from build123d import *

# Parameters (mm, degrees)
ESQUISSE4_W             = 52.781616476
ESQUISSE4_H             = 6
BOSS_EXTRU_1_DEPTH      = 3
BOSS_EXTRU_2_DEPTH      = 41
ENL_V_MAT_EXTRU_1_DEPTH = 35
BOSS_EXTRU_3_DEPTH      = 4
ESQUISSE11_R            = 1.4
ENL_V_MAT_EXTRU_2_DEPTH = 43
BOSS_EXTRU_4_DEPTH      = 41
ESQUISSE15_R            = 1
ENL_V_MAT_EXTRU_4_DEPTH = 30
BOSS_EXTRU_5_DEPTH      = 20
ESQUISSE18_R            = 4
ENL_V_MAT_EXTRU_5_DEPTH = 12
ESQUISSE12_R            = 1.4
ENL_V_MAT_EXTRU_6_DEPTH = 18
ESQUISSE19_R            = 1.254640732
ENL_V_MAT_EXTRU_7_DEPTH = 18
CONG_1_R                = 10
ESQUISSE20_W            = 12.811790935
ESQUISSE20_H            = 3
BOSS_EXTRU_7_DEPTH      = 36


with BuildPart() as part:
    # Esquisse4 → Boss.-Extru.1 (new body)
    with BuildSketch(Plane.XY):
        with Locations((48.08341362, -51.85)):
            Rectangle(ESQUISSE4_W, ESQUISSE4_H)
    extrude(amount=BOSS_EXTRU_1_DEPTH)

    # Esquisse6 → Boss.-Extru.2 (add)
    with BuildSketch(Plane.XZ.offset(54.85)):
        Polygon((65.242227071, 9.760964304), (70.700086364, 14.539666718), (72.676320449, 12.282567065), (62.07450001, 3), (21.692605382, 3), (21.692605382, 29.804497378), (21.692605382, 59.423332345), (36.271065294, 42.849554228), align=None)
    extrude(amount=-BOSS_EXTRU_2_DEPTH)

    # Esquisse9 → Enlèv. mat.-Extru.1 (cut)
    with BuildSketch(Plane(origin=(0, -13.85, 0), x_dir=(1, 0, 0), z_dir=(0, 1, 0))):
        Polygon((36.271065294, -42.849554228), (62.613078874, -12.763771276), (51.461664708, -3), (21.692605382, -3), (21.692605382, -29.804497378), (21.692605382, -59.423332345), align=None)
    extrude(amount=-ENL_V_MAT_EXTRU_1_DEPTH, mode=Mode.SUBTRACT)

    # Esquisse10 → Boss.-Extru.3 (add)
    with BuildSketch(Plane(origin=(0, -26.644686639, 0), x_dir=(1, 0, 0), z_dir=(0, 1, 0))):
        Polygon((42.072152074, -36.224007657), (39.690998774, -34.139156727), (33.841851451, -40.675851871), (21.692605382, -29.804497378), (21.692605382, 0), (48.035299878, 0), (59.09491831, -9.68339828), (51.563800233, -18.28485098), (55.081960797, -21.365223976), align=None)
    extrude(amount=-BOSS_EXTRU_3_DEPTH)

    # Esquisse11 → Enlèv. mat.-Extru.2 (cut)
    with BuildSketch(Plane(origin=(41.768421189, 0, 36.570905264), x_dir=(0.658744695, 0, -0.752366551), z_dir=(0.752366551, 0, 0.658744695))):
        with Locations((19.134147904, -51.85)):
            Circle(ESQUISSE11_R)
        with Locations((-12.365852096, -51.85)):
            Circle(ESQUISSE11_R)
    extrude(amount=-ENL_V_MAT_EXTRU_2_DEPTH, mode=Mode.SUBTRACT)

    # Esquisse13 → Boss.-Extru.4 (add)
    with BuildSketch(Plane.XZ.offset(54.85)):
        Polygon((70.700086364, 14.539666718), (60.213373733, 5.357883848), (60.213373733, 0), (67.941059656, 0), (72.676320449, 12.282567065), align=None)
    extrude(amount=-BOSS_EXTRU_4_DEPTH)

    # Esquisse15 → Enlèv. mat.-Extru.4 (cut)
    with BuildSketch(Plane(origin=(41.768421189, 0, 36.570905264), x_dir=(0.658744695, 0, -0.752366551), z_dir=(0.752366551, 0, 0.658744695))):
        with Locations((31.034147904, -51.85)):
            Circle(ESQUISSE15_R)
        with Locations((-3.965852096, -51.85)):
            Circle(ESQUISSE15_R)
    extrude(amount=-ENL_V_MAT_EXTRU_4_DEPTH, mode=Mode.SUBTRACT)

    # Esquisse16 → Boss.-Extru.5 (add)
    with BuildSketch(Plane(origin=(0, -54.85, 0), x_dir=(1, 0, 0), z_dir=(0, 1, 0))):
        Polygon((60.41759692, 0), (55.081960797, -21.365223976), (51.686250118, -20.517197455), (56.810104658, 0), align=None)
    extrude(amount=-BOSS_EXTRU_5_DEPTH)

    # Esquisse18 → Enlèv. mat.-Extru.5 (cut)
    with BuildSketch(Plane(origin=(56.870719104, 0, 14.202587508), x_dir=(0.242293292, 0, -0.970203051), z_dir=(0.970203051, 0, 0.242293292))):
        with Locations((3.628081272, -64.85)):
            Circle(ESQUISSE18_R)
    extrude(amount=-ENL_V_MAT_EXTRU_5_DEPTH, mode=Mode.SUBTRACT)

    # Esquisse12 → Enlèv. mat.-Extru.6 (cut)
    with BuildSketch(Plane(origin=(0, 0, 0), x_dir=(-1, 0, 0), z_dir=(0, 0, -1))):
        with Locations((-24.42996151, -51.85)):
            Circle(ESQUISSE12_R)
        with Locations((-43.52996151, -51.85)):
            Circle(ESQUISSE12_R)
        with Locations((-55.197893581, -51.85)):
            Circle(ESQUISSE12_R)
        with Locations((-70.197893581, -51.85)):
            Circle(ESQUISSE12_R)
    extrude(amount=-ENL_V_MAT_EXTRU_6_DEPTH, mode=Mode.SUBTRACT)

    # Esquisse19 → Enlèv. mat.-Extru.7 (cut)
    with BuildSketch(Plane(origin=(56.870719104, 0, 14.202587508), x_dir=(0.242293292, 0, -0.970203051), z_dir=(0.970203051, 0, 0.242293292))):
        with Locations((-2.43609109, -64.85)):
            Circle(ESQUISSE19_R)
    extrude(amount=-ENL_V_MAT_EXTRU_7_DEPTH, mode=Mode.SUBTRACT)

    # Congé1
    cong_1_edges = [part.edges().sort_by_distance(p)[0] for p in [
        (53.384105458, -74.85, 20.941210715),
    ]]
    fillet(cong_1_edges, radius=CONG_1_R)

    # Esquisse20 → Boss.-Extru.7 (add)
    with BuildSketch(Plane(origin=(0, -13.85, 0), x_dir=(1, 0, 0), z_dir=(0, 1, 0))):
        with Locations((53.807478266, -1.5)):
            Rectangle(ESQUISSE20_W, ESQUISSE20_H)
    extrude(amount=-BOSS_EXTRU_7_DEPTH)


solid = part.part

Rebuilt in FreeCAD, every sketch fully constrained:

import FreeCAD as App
import Part
import Sketcher


def edges_at(feature, points):
    """Names of the edges that pass closest to the given points."""
    edges = feature.Shape.Edges
    near = lambda p: min(range(len(edges)), key=lambda i: edges[i].distToShape(Part.Vertex(*p))[0])
    return sorted({f"Edge{near(p) + 1}" for p in points})

doc = App.newDocument("Part")
params = doc.addObject("Spreadsheet::Sheet", "Params")
for row, (alias, value) in enumerate([
    ("sketch1_height", "6 mm"),
    ("pad1_length", "3 mm"),
    ("sketch2_length", "3 mm"),
    ("pad2_length", "41 mm"),
    ("pocket1_length", "35 mm"),
    ("pad3_length", "4 mm"),
    ("sketch5_diameter", "2.8 mm"),
    ("pocket2_length", "43 mm"),
    ("sketch6_length", "3 mm"),
    ("pad4_length", "41 mm"),
    ("sketch7_diameter", "2 mm"),
    ("pocket3_length", "30 mm"),
    ("sketch8_length", "3.5 mm"),
    ("pad5_length", "20 mm"),
    ("sketch9_diameter", "8 mm"),
    ("pocket4_length", "12 mm"),
    ("sketch10_diameter", "2.8 mm"),
    ("pocket5_length", "18 mm"),
    ("pocket6_length", "18 mm"),
    ("fillet_radius", "10 mm"),
    ("sketch12_height", "3 mm"),
    ("pad6_length", "36 mm"),
], start=1):
    params.set(f"A{row}", alias)
    params.set(f"B{row}", "=" + value)
    params.setAlias(f"B{row}", alias)

body = doc.addObject("PartDesign::Body", "Body")

# Sketch on XY plane
sketch1 = doc.addObject("Sketcher::SketchObject", "Sketch")
body.addObject(sketch1)
sketch1.AttachmentSupport = (doc.XY_Plane, [""])
sketch1.MapMode = "FlatFace"
sketch1.addGeometry([
    Part.LineSegment(App.Vector(21.692605, -48.85, 0), App.Vector(21.692605, -54.85, 0)),
    Part.LineSegment(App.Vector(21.692605, -54.85, 0), App.Vector(74.474222, -54.85, 0)),
    Part.LineSegment(App.Vector(74.474222, -54.85, 0), App.Vector(74.474222, -48.85, 0)),
    Part.LineSegment(App.Vector(74.474222, -48.85, 0), App.Vector(21.692605, -48.85, 0)),
], False)
sketch1.addConstraint([
    Sketcher.Constraint("Coincident", 0, 2, 1, 1),
    Sketcher.Constraint("Coincident", 1, 2, 2, 1),
    Sketcher.Constraint("Coincident", 2, 2, 3, 1),
    Sketcher.Constraint("Coincident", 3, 2, 0, 1),
    Sketcher.Constraint("Vertical", 0),
    Sketcher.Constraint("Horizontal", 1),
    Sketcher.Constraint("Vertical", 2),
    Sketcher.Constraint("Horizontal", 3),
    Sketcher.Constraint("DistanceY", 0, 2, 0, 1, 6.0),
    Sketcher.Constraint("DistanceY", 0, 2, -1, 1, 54.85),
    Sketcher.Constraint("DistanceX", 1, 1, 1, 2, 52.781616),
    Sketcher.Constraint("DistanceX", -1, 1, 1, 2, 74.474222),
])
sketch1.setExpression("Constraints[8]", "Params.sketch1_height")
pad1 = doc.addObject("PartDesign::Pad", "Pad")
body.addObject(pad1)
pad1.Profile = sketch1
pad1.setExpression("Length", "Params.pad1_length")

# Sketch on XZ plane
sketch2 = doc.addObject("Sketcher::SketchObject", "Sketch001")
body.addObject(sketch2)
sketch2.AttachmentSupport = (doc.XZ_Plane, [""])
sketch2.MapMode = "FlatFace"
sketch2.AttachmentOffset = App.Placement(App.Vector(0, 0, 54.85), App.Rotation())
sketch2.addGeometry([
    Part.LineSegment(App.Vector(70.700086, 14.539667, 0), App.Vector(65.242227, 9.760964, 0)),  # 0
    Part.LineSegment(App.Vector(65.242227, 9.760964, 0), App.Vector(36.271065, 42.849554, 0)),  # 1
    Part.LineSegment(App.Vector(36.271065, 42.849554, 0), App.Vector(21.692605, 59.423332, 0)),  # 2
    Part.LineSegment(App.Vector(21.692605, 59.423332, 0), App.Vector(21.692605, 3, 0)),  # 3
    Part.LineSegment(App.Vector(21.692605, 3, 0), App.Vector(62.0745, 3, 0)),  # 4
    Part.LineSegment(App.Vector(62.0745, 3, 0), App.Vector(72.67632, 12.282567, 0)),  # 5
    Part.LineSegment(App.Vector(72.67632, 12.282567, 0), App.Vector(70.700086, 14.539667, 0)),  # 6
], False)
sketch2.addConstraint([
    Sketcher.Constraint("Coincident", 0, 2, 1, 1),
    Sketcher.Constraint("Coincident", 1, 2, 2, 1),
    Sketcher.Constraint("Coincident", 2, 2, 3, 1),
    Sketcher.Constraint("Coincident", 3, 2, 4, 1),
    Sketcher.Constraint("Coincident", 4, 2, 5, 1),
    Sketcher.Constraint("Coincident", 5, 2, 6, 1),
    Sketcher.Constraint("Coincident", 6, 2, 0, 1),
    Sketcher.Constraint("Vertical", 3),
    Sketcher.Constraint("Horizontal", 4),
    Sketcher.Constraint("Perpendicular", 0, 1),
    Sketcher.Constraint("Perpendicular", 1, 5),
    Sketcher.Constraint("Perpendicular", 5, 6),
    Sketcher.Constraint("Distance", 6, 3.0),
    Sketcher.Constraint("DistanceY", -1, 1, 3, 2, 3.0),
    Sketcher.Constraint("DistanceX", -1, 1, 4, 2, 62.0745),
    Sketcher.Constraint("DistanceY", 5, 2, 6, 2, 2.2571),
    Sketcher.Constraint("DistanceX", 4, 1, 4, 2, 40.381895),
    Sketcher.Constraint("DistanceY", 3, 2, 3, 1, 56.423332),
    Sketcher.Constraint("DistanceX", -1, 1, 5, 2, 72.67632),
    Sketcher.Constraint("DistanceX", 1, 2, 0, 2, 28.971162),
    Sketcher.Constraint("DistanceX", 2, 2, 1, 2, 14.57846),
])
sketch2.setExpression("Constraints[12]", "Params.sketch2_length")
pad2 = doc.addObject("PartDesign::Pad", "Pad001")
body.addObject(pad2)
pad2.Profile = sketch2
pad2.setExpression("Length", "Params.pad2_length")
pad2.Reversed = True

# Sketch on XZ plane
sketch3 = doc.addObject("Sketcher::SketchObject", "Sketch002")
body.addObject(sketch3)
sketch3.AttachmentSupport = (doc.XZ_Plane, [""])
sketch3.MapMode = "FlatFace"
sketch3.AttachmentOffset = App.Placement(App.Vector(0, 0, 13.85), App.Rotation())
sketch3.addGeometry([
    Part.LineSegment(App.Vector(36.271065, 42.849554, 0), App.Vector(62.613079, 12.763771, 0)),  # 0
    Part.LineSegment(App.Vector(62.613079, 12.763771, 0), App.Vector(51.461665, 3, 0)),  # 1
    Part.LineSegment(App.Vector(51.461665, 3, 0), App.Vector(21.692605, 3, 0)),  # 2
    Part.LineSegment(App.Vector(21.692605, 3, 0), App.Vector(21.692605, 59.423332, 0)),  # 3
    Part.LineSegment(App.Vector(21.692605, 59.423332, 0), App.Vector(36.271065, 42.849554, 0)),  # 4
], False)
sketch3.addConstraint([
    Sketcher.Constraint("Coincident", 0, 2, 1, 1),
    Sketcher.Constraint("Coincident", 1, 2, 2, 1),
    Sketcher.Constraint("Coincident", 2, 2, 3, 1),
    Sketcher.Constraint("Coincident", 3, 2, 4, 1),
    Sketcher.Constraint("Coincident", 4, 2, 0, 1),
    Sketcher.Constraint("Horizontal", 2),
    Sketcher.Constraint("Vertical", 3),
    Sketcher.Constraint("Perpendicular", 0, 1),
    Sketcher.Constraint("DistanceY", -1, 1, 1, 2, 3.0),
    Sketcher.Constraint("Distance", 0, 39.988198),
    Sketcher.Constraint("DistanceX", 2, 2, 2, 1, 29.769059),
    Sketcher.Constraint("DistanceX", 4, 2, 1, 2, 15.190599),
    Sketcher.Constraint("DistanceY", 3, 1, 3, 2, 56.423332),
    Sketcher.Constraint("DistanceX", -1, 1, 0, 2, 62.613079),
    Sketcher.Constraint("DistanceY", -1, 1, 0, 2, 12.763771),
])
pocket1 = doc.addObject("PartDesign::Pocket", "Pocket")
body.addObject(pocket1)
pocket1.Profile = sketch3
pocket1.setExpression("Length", "Params.pocket1_length")
pocket1.Reversed = True

# Sketch on XZ plane
sketch4 = doc.addObject("Sketcher::SketchObject", "Sketch003")
body.addObject(sketch4)
sketch4.AttachmentSupport = (doc.XZ_Plane, [""])
sketch4.MapMode = "FlatFace"
sketch4.AttachmentOffset = App.Placement(App.Vector(0, 0, 26.644687), App.Rotation())
sketch4.addGeometry([
    Part.LineSegment(App.Vector(39.690999, 34.139157, 0), App.Vector(42.072152, 36.224008, 0)),  # 0
    Part.LineSegment(App.Vector(42.072152, 36.224008, 0), App.Vector(55.081961, 21.365224, 0)),  # 1
    Part.LineSegment(App.Vector(55.081961, 21.365224, 0), App.Vector(51.5638, 18.284851, 0)),  # 2
    Part.LineSegment(App.Vector(51.5638, 18.284851, 0), App.Vector(59.094918, 9.683398, 0)),  # 3
    Part.LineSegment(App.Vector(59.094918, 9.683398, 0), App.Vector(48.0353, 0, 0)),  # 4
    Part.LineSegment(App.Vector(48.0353, 0, 0), App.Vector(21.692605, 0, 0)),  # 5
    Part.LineSegment(App.Vector(21.692605, 0, 0), App.Vector(21.692605, 29.804497, 0)),  # 6
    Part.LineSegment(App.Vector(21.692605, 29.804497, 0), App.Vector(33.841851, 40.675852, 0)),  # 7
    Part.LineSegment(App.Vector(33.841851, 40.675852, 0), App.Vector(39.690999, 34.139157, 0)),  # 8
], False)
sketch4.addConstraint([
    Sketcher.Constraint("Coincident", 0, 2, 1, 1),
    Sketcher.Constraint("Coincident", 1, 2, 2, 1),
    Sketcher.Constraint("Coincident", 2, 2, 3, 1),
    Sketcher.Constraint("Coincident", 3, 2, 4, 1),
    Sketcher.Constraint("Coincident", 4, 2, 5, 1),
    Sketcher.Constraint("Coincident", 5, 2, 6, 1),
    Sketcher.Constraint("Coincident", 6, 2, 7, 1),
    Sketcher.Constraint("Coincident", 7, 2, 8, 1),
    Sketcher.Constraint("Coincident", 8, 2, 0, 1),
    Sketcher.Constraint("Horizontal", 5),
    Sketcher.Constraint("Vertical", 6),
    Sketcher.Constraint("PointOnObject", 4, 2, -1),
    Sketcher.Constraint("Perpendicular", 0, 1),
    Sketcher.Constraint("Perpendicular", 1, 2),
    Sketcher.Constraint("Perpendicular", 2, 3),
    Sketcher.Constraint("Perpendicular", 3, 4),
    Sketcher.Constraint("Perpendicular", 7, 8),
    Sketcher.Constraint("DistanceX", -1, 1, 8, 2, 39.690999),
    Sketcher.Constraint("DistanceY", 2, 2, 7, 2, 22.391001),
    Sketcher.Constraint("DistanceX", -1, 1, 2, 2, 51.5638),
    Sketcher.Constraint("DistanceY", -1, 1, 3, 2, 9.683398),
    Sketcher.Constraint("DistanceX", -1, 1, 4, 2, 48.0353),
    Sketcher.Constraint("DistanceX", 7, 2, 0, 2, 8.230301),
    Sketcher.Constraint("Distance", 3, 11.432529),
    Sketcher.Constraint("DistanceX", 5, 2, 5, 1, 26.342694),
    Sketcher.Constraint("DistanceY", 6, 1, 6, 2, 29.804497),
    Sketcher.Constraint("DistanceX", -1, 1, 1, 2, 55.081961),
])
pad3 = doc.addObject("PartDesign::Pad", "Pad002")
body.addObject(pad3)
pad3.Profile = sketch4
pad3.setExpression("Length", "Params.pad3_length")

# Sketch on an angled plane
sketch5 = doc.addObject("Sketcher::SketchObject", "Sketch004")
body.addObject(sketch5)
sketch5.Placement = App.Placement(App.Vector(41.768421, 0, 36.570905), App.Rotation(App.Vector(0.658744695, 0, -0.752366551), App.Vector(0, 1, 0), App.Vector(0.752366551, 0, 0.658744695), "ZXY"))
sketch5.addGeometry([
    Part.Circle(App.Vector(19.134148, -51.85, 0), App.Vector(0, 0, 1), 1.4),
    Part.Circle(App.Vector(-12.365852, -51.85, 0), App.Vector(0, 0, 1), 1.4),
], False)
sketch5.addConstraint([
    Sketcher.Constraint("Equal", 0, 1),
    Sketcher.Constraint("Horizontal", 0, 3, 1, 3),
    Sketcher.Constraint("Diameter", 0, 2.8),
    Sketcher.Constraint("DistanceX", 1, 3, 0, 3, 31.5),
    Sketcher.Constraint("DistanceY", 0, 3, -1, 1, 51.85),
    Sketcher.Constraint("DistanceX", -1, 1, 0, 3, 19.134148),
])
sketch5.setExpression("Constraints[2]", "Params.sketch5_diameter")
pocket2 = doc.addObject("PartDesign::Pocket", "Pocket001")
body.addObject(pocket2)
pocket2.Profile = sketch5
pocket2.setExpression("Length", "Params.pocket2_length")

# Sketch on XZ plane
sketch6 = doc.addObject("Sketcher::SketchObject", "Sketch005")
body.addObject(sketch6)
sketch6.AttachmentSupport = (doc.XZ_Plane, [""])
sketch6.MapMode = "FlatFace"
sketch6.AttachmentOffset = App.Placement(App.Vector(0, 0, 54.85), App.Rotation())
sketch6.addGeometry([
    Part.LineSegment(App.Vector(70.700086, 14.539667, 0), App.Vector(60.213374, 5.357884, 0)),  # 0
    Part.LineSegment(App.Vector(60.213374, 5.357884, 0), App.Vector(60.213374, 0, 0)),  # 1
    Part.LineSegment(App.Vector(60.213374, 0, 0), App.Vector(67.94106, 0, 0)),  # 2
    Part.LineSegment(App.Vector(67.94106, 0, 0), App.Vector(72.67632, 12.282567, 0)),  # 3
    Part.LineSegment(App.Vector(72.67632, 12.282567, 0), App.Vector(70.700086, 14.539667, 0)),  # 4
], False)
sketch6.addConstraint([
    Sketcher.Constraint("Coincident", 0, 2, 1, 1),
    Sketcher.Constraint("Coincident", 1, 2, 2, 1),
    Sketcher.Constraint("Coincident", 2, 2, 3, 1),
    Sketcher.Constraint("Coincident", 3, 2, 4, 1),
    Sketcher.Constraint("Coincident", 4, 2, 0, 1),
    Sketcher.Constraint("Vertical", 1),
    Sketcher.Constraint("Horizontal", 2),
    Sketcher.Constraint("PointOnObject", 1, 2, -1),
    Sketcher.Constraint("Perpendicular", 0, 4),
    Sketcher.Constraint("Distance", 4, 3.0),
    Sketcher.Constraint("DistanceY", 3, 2, 4, 2, 2.2571),
    Sketcher.Constraint("DistanceX", 2, 1, 2, 2, 7.727686),
    Sketcher.Constraint("DistanceY", 1, 2, 1, 1, 5.357884),
    Sketcher.Constraint("DistanceX", -1, 1, 2, 2, 67.94106),
    Sketcher.Constraint("DistanceX", -1, 1, 3, 2, 72.67632),
])
sketch6.setExpression("Constraints[9]", "Params.sketch6_length")
pad4 = doc.addObject("PartDesign::Pad", "Pad003")
body.addObject(pad4)
pad4.Profile = sketch6
pad4.setExpression("Length", "Params.pad4_length")
pad4.Reversed = True

# Sketch on an angled plane
sketch7 = doc.addObject("Sketcher::SketchObject", "Sketch006")
body.addObject(sketch7)
sketch7.Placement = App.Placement(App.Vector(41.768421, 0, 36.570905), App.Rotation(App.Vector(0.658744695, 0, -0.752366551), App.Vector(0, 1, 0), App.Vector(0.752366551, 0, 0.658744695), "ZXY"))
sketch7.addGeometry([
    Part.Circle(App.Vector(31.034148, -51.85, 0), App.Vector(0, 0, 1), 1),
    Part.Circle(App.Vector(-3.965852, -51.85, 0), App.Vector(0, 0, 1), 1),
], False)
sketch7.addConstraint([
    Sketcher.Constraint("Equal", 0, 1),
    Sketcher.Constraint("Horizontal", 0, 3, 1, 3),
    Sketcher.Constraint("Diameter", 0, 2.0),
    Sketcher.Constraint("DistanceX", 1, 3, 0, 3, 35.0),
    Sketcher.Constraint("DistanceY", 0, 3, -1, 1, 51.85),
    Sketcher.Constraint("DistanceX", -1, 1, 0, 3, 31.034148),
])
sketch7.setExpression("Constraints[2]", "Params.sketch7_diameter")
pocket3 = doc.addObject("PartDesign::Pocket", "Pocket002")
body.addObject(pocket3)
pocket3.Profile = sketch7
pocket3.setExpression("Length", "Params.pocket3_length")

# Sketch on XZ plane
sketch8 = doc.addObject("Sketcher::SketchObject", "Sketch007")
body.addObject(sketch8)
sketch8.AttachmentSupport = (doc.XZ_Plane, [""])
sketch8.MapMode = "FlatFace"
sketch8.AttachmentOffset = App.Placement(App.Vector(0, 0, 54.85), App.Rotation())
sketch8.addGeometry([
    Part.LineSegment(App.Vector(55.081961, 21.365224, 0), App.Vector(60.417597, 0, 0)),
    Part.LineSegment(App.Vector(60.417597, 0, 0), App.Vector(56.810105, 0, 0)),
    Part.LineSegment(App.Vector(56.810105, 0, 0), App.Vector(51.68625, 20.517197, 0)),
    Part.LineSegment(App.Vector(51.68625, 20.517197, 0), App.Vector(55.081961, 21.365224, 0)),
], False)
sketch8.addConstraint([
    Sketcher.Constraint("Coincident", 0, 2, 1, 1),
    Sketcher.Constraint("Coincident", 1, 2, 2, 1),
    Sketcher.Constraint("Coincident", 2, 2, 3, 1),
    Sketcher.Constraint("Coincident", 3, 2, 0, 1),
    Sketcher.Constraint("Horizontal", 1),
    Sketcher.Constraint("PointOnObject", 0, 2, -1),
    Sketcher.Constraint("Parallel", 0, 2),
    Sketcher.Constraint("Perpendicular", 2, 3),
    Sketcher.Constraint("Distance", 3, 3.5),
    Sketcher.Constraint("DistanceX", 1, 2, 1, 1, 3.607492),
    Sketcher.Constraint("DistanceX", -1, 1, 2, 2, 51.68625),
    Sketcher.Constraint("Distance", 0, 22.021394),
])
sketch8.setExpression("Constraints[8]", "Params.sketch8_length")
pad5 = doc.addObject("PartDesign::Pad", "Pad004")
body.addObject(pad5)
pad5.Profile = sketch8
pad5.setExpression("Length", "Params.pad5_length")

# Sketch on an angled plane
sketch9 = doc.addObject("Sketcher::SketchObject", "Sketch008")
body.addObject(sketch9)
sketch9.Placement = App.Placement(App.Vector(56.870719, 0, 14.202588), App.Rotation(App.Vector(0.242293292, 0, -0.970203051), App.Vector(0, 1, 0), App.Vector(0.970203051, 0, 0.242293292), "ZXY"))
sketch9.addGeometry(Part.Circle(App.Vector(3.628081, -64.85, 0), App.Vector(0, 0, 1), 4), False)
sketch9.addConstraint([
    Sketcher.Constraint("Diameter", 0, 8.0),
    Sketcher.Constraint("DistanceY", 0, 3, -1, 1, 64.85),
    Sketcher.Constraint("DistanceX", -1, 1, 0, 3, 3.628081),
])
sketch9.setExpression("Constraints[0]", "Params.sketch9_diameter")
pocket4 = doc.addObject("PartDesign::Pocket", "Pocket003")
body.addObject(pocket4)
pocket4.Profile = sketch9
pocket4.setExpression("Length", "Params.pocket4_length")

# Sketch on XY plane
sketch10 = doc.addObject("Sketcher::SketchObject", "Sketch009")
body.addObject(sketch10)
sketch10.AttachmentSupport = (doc.XY_Plane, [""])
sketch10.MapMode = "FlatFace"
sketch10.addGeometry([
    Part.Circle(App.Vector(24.429962, -51.85, 0), App.Vector(0, 0, 1), 1.4),
    Part.Circle(App.Vector(43.529962, -51.85, 0), App.Vector(0, 0, 1), 1.4),
    Part.Circle(App.Vector(55.197894, -51.85, 0), App.Vector(0, 0, 1), 1.4),
    Part.Circle(App.Vector(70.197894, -51.85, 0), App.Vector(0, 0, 1), 1.4),
], False)
sketch10.addConstraint([
    Sketcher.Constraint("Equal", 0, 1),
    Sketcher.Constraint("Equal", 1, 2),
    Sketcher.Constraint("Equal", 2, 3),
    Sketcher.Constraint("Horizontal", 0, 3, 1, 3),
    Sketcher.Constraint("Horizontal", 1, 3, 2, 3),
    Sketcher.Constraint("Horizontal", 2, 3, 3, 3),
    Sketcher.Constraint("Diameter", 0, 2.8),
    Sketcher.Constraint("DistanceX", 2, 3, 3, 3, 15.0),
    Sketcher.Constraint("DistanceX", 0, 3, 1, 3, 19.1),
    Sketcher.Constraint("DistanceY", 0, 3, -1, 1, 51.85),
    Sketcher.Constraint("DistanceX", -1, 1, 0, 3, 24.429962),
    Sketcher.Constraint("DistanceX", -1, 1, 2, 3, 55.197894),
])
sketch10.setExpression("Constraints[6]", "Params.sketch10_diameter")
pocket5 = doc.addObject("PartDesign::Pocket", "Pocket004")
body.addObject(pocket5)
pocket5.Profile = sketch10
pocket5.setExpression("Length", "Params.pocket5_length")
pocket5.Reversed = True

# Sketch on an angled plane
sketch11 = doc.addObject("Sketcher::SketchObject", "Sketch010")
body.addObject(sketch11)
sketch11.Placement = App.Placement(App.Vector(56.870719, 0, 14.202588), App.Rotation(App.Vector(0.242293292, 0, -0.970203051), App.Vector(0, 1, 0), App.Vector(0.970203051, 0, 0.242293292), "ZXY"))
sketch11.addGeometry(Part.Circle(App.Vector(-2.436091, -64.85, 0), App.Vector(0, 0, 1), 1.254641), False)
sketch11.addConstraint([
    Sketcher.Constraint("Diameter", 0, 2.509281),
    Sketcher.Constraint("DistanceY", 0, 3, -1, 1, 64.85),
    Sketcher.Constraint("DistanceX", 0, 3, -1, 1, 2.436091),
])
pocket6 = doc.addObject("PartDesign::Pocket", "Pocket005")
body.addObject(pocket6)
pocket6.Profile = sketch11
pocket6.setExpression("Length", "Params.pocket6_length")
doc.recompute()

fillet = doc.addObject("PartDesign::Fillet", "Fillet")
body.addObject(fillet)
fillet.Base = (pocket6, edges_at(pocket6, [(53.384, -74.85, 20.941)]))
fillet.setExpression("Radius", "Params.fillet_radius")

# Sketch on XZ plane
sketch12 = doc.addObject("Sketcher::SketchObject", "Sketch011")
body.addObject(sketch12)
sketch12.AttachmentSupport = (doc.XZ_Plane, [""])
sketch12.MapMode = "FlatFace"
sketch12.AttachmentOffset = App.Placement(App.Vector(0, 0, 13.85), App.Rotation())
sketch12.addGeometry([
    Part.LineSegment(App.Vector(47.401583, 0, 0), App.Vector(47.401583, 3, 0)),
    Part.LineSegment(App.Vector(47.401583, 3, 0), App.Vector(60.213374, 3, 0)),
    Part.LineSegment(App.Vector(60.213374, 3, 0), App.Vector(60.213374, 0, 0)),
    Part.LineSegment(App.Vector(60.213374, 0, 0), App.Vector(47.401583, 0, 0)),
], False)
sketch12.addConstraint([
    Sketcher.Constraint("Coincident", 0, 2, 1, 1),
    Sketcher.Constraint("Coincident", 1, 2, 2, 1),
    Sketcher.Constraint("Coincident", 2, 2, 3, 1),
    Sketcher.Constraint("Coincident", 3, 2, 0, 1),
    Sketcher.Constraint("Vertical", 0),
    Sketcher.Constraint("Horizontal", 1),
    Sketcher.Constraint("Vertical", 2),
    Sketcher.Constraint("Horizontal", 3),
    Sketcher.Constraint("PointOnObject", 2, 2, -1),
    Sketcher.Constraint("DistanceY", 0, 1, 0, 2, 3.0),
    Sketcher.Constraint("DistanceX", 1, 1, 1, 2, 12.811791),
    Sketcher.Constraint("DistanceX", -1, 1, 0, 2, 47.401583),
])
sketch12.setExpression("Constraints[9]", "Params.sketch12_height")
pad6 = doc.addObject("PartDesign::Pad", "Pad005")
body.addObject(pad6)
pad6.Profile = sketch12
pad6.setExpression("Length", "Params.pad6_length")

doc.recompute()
